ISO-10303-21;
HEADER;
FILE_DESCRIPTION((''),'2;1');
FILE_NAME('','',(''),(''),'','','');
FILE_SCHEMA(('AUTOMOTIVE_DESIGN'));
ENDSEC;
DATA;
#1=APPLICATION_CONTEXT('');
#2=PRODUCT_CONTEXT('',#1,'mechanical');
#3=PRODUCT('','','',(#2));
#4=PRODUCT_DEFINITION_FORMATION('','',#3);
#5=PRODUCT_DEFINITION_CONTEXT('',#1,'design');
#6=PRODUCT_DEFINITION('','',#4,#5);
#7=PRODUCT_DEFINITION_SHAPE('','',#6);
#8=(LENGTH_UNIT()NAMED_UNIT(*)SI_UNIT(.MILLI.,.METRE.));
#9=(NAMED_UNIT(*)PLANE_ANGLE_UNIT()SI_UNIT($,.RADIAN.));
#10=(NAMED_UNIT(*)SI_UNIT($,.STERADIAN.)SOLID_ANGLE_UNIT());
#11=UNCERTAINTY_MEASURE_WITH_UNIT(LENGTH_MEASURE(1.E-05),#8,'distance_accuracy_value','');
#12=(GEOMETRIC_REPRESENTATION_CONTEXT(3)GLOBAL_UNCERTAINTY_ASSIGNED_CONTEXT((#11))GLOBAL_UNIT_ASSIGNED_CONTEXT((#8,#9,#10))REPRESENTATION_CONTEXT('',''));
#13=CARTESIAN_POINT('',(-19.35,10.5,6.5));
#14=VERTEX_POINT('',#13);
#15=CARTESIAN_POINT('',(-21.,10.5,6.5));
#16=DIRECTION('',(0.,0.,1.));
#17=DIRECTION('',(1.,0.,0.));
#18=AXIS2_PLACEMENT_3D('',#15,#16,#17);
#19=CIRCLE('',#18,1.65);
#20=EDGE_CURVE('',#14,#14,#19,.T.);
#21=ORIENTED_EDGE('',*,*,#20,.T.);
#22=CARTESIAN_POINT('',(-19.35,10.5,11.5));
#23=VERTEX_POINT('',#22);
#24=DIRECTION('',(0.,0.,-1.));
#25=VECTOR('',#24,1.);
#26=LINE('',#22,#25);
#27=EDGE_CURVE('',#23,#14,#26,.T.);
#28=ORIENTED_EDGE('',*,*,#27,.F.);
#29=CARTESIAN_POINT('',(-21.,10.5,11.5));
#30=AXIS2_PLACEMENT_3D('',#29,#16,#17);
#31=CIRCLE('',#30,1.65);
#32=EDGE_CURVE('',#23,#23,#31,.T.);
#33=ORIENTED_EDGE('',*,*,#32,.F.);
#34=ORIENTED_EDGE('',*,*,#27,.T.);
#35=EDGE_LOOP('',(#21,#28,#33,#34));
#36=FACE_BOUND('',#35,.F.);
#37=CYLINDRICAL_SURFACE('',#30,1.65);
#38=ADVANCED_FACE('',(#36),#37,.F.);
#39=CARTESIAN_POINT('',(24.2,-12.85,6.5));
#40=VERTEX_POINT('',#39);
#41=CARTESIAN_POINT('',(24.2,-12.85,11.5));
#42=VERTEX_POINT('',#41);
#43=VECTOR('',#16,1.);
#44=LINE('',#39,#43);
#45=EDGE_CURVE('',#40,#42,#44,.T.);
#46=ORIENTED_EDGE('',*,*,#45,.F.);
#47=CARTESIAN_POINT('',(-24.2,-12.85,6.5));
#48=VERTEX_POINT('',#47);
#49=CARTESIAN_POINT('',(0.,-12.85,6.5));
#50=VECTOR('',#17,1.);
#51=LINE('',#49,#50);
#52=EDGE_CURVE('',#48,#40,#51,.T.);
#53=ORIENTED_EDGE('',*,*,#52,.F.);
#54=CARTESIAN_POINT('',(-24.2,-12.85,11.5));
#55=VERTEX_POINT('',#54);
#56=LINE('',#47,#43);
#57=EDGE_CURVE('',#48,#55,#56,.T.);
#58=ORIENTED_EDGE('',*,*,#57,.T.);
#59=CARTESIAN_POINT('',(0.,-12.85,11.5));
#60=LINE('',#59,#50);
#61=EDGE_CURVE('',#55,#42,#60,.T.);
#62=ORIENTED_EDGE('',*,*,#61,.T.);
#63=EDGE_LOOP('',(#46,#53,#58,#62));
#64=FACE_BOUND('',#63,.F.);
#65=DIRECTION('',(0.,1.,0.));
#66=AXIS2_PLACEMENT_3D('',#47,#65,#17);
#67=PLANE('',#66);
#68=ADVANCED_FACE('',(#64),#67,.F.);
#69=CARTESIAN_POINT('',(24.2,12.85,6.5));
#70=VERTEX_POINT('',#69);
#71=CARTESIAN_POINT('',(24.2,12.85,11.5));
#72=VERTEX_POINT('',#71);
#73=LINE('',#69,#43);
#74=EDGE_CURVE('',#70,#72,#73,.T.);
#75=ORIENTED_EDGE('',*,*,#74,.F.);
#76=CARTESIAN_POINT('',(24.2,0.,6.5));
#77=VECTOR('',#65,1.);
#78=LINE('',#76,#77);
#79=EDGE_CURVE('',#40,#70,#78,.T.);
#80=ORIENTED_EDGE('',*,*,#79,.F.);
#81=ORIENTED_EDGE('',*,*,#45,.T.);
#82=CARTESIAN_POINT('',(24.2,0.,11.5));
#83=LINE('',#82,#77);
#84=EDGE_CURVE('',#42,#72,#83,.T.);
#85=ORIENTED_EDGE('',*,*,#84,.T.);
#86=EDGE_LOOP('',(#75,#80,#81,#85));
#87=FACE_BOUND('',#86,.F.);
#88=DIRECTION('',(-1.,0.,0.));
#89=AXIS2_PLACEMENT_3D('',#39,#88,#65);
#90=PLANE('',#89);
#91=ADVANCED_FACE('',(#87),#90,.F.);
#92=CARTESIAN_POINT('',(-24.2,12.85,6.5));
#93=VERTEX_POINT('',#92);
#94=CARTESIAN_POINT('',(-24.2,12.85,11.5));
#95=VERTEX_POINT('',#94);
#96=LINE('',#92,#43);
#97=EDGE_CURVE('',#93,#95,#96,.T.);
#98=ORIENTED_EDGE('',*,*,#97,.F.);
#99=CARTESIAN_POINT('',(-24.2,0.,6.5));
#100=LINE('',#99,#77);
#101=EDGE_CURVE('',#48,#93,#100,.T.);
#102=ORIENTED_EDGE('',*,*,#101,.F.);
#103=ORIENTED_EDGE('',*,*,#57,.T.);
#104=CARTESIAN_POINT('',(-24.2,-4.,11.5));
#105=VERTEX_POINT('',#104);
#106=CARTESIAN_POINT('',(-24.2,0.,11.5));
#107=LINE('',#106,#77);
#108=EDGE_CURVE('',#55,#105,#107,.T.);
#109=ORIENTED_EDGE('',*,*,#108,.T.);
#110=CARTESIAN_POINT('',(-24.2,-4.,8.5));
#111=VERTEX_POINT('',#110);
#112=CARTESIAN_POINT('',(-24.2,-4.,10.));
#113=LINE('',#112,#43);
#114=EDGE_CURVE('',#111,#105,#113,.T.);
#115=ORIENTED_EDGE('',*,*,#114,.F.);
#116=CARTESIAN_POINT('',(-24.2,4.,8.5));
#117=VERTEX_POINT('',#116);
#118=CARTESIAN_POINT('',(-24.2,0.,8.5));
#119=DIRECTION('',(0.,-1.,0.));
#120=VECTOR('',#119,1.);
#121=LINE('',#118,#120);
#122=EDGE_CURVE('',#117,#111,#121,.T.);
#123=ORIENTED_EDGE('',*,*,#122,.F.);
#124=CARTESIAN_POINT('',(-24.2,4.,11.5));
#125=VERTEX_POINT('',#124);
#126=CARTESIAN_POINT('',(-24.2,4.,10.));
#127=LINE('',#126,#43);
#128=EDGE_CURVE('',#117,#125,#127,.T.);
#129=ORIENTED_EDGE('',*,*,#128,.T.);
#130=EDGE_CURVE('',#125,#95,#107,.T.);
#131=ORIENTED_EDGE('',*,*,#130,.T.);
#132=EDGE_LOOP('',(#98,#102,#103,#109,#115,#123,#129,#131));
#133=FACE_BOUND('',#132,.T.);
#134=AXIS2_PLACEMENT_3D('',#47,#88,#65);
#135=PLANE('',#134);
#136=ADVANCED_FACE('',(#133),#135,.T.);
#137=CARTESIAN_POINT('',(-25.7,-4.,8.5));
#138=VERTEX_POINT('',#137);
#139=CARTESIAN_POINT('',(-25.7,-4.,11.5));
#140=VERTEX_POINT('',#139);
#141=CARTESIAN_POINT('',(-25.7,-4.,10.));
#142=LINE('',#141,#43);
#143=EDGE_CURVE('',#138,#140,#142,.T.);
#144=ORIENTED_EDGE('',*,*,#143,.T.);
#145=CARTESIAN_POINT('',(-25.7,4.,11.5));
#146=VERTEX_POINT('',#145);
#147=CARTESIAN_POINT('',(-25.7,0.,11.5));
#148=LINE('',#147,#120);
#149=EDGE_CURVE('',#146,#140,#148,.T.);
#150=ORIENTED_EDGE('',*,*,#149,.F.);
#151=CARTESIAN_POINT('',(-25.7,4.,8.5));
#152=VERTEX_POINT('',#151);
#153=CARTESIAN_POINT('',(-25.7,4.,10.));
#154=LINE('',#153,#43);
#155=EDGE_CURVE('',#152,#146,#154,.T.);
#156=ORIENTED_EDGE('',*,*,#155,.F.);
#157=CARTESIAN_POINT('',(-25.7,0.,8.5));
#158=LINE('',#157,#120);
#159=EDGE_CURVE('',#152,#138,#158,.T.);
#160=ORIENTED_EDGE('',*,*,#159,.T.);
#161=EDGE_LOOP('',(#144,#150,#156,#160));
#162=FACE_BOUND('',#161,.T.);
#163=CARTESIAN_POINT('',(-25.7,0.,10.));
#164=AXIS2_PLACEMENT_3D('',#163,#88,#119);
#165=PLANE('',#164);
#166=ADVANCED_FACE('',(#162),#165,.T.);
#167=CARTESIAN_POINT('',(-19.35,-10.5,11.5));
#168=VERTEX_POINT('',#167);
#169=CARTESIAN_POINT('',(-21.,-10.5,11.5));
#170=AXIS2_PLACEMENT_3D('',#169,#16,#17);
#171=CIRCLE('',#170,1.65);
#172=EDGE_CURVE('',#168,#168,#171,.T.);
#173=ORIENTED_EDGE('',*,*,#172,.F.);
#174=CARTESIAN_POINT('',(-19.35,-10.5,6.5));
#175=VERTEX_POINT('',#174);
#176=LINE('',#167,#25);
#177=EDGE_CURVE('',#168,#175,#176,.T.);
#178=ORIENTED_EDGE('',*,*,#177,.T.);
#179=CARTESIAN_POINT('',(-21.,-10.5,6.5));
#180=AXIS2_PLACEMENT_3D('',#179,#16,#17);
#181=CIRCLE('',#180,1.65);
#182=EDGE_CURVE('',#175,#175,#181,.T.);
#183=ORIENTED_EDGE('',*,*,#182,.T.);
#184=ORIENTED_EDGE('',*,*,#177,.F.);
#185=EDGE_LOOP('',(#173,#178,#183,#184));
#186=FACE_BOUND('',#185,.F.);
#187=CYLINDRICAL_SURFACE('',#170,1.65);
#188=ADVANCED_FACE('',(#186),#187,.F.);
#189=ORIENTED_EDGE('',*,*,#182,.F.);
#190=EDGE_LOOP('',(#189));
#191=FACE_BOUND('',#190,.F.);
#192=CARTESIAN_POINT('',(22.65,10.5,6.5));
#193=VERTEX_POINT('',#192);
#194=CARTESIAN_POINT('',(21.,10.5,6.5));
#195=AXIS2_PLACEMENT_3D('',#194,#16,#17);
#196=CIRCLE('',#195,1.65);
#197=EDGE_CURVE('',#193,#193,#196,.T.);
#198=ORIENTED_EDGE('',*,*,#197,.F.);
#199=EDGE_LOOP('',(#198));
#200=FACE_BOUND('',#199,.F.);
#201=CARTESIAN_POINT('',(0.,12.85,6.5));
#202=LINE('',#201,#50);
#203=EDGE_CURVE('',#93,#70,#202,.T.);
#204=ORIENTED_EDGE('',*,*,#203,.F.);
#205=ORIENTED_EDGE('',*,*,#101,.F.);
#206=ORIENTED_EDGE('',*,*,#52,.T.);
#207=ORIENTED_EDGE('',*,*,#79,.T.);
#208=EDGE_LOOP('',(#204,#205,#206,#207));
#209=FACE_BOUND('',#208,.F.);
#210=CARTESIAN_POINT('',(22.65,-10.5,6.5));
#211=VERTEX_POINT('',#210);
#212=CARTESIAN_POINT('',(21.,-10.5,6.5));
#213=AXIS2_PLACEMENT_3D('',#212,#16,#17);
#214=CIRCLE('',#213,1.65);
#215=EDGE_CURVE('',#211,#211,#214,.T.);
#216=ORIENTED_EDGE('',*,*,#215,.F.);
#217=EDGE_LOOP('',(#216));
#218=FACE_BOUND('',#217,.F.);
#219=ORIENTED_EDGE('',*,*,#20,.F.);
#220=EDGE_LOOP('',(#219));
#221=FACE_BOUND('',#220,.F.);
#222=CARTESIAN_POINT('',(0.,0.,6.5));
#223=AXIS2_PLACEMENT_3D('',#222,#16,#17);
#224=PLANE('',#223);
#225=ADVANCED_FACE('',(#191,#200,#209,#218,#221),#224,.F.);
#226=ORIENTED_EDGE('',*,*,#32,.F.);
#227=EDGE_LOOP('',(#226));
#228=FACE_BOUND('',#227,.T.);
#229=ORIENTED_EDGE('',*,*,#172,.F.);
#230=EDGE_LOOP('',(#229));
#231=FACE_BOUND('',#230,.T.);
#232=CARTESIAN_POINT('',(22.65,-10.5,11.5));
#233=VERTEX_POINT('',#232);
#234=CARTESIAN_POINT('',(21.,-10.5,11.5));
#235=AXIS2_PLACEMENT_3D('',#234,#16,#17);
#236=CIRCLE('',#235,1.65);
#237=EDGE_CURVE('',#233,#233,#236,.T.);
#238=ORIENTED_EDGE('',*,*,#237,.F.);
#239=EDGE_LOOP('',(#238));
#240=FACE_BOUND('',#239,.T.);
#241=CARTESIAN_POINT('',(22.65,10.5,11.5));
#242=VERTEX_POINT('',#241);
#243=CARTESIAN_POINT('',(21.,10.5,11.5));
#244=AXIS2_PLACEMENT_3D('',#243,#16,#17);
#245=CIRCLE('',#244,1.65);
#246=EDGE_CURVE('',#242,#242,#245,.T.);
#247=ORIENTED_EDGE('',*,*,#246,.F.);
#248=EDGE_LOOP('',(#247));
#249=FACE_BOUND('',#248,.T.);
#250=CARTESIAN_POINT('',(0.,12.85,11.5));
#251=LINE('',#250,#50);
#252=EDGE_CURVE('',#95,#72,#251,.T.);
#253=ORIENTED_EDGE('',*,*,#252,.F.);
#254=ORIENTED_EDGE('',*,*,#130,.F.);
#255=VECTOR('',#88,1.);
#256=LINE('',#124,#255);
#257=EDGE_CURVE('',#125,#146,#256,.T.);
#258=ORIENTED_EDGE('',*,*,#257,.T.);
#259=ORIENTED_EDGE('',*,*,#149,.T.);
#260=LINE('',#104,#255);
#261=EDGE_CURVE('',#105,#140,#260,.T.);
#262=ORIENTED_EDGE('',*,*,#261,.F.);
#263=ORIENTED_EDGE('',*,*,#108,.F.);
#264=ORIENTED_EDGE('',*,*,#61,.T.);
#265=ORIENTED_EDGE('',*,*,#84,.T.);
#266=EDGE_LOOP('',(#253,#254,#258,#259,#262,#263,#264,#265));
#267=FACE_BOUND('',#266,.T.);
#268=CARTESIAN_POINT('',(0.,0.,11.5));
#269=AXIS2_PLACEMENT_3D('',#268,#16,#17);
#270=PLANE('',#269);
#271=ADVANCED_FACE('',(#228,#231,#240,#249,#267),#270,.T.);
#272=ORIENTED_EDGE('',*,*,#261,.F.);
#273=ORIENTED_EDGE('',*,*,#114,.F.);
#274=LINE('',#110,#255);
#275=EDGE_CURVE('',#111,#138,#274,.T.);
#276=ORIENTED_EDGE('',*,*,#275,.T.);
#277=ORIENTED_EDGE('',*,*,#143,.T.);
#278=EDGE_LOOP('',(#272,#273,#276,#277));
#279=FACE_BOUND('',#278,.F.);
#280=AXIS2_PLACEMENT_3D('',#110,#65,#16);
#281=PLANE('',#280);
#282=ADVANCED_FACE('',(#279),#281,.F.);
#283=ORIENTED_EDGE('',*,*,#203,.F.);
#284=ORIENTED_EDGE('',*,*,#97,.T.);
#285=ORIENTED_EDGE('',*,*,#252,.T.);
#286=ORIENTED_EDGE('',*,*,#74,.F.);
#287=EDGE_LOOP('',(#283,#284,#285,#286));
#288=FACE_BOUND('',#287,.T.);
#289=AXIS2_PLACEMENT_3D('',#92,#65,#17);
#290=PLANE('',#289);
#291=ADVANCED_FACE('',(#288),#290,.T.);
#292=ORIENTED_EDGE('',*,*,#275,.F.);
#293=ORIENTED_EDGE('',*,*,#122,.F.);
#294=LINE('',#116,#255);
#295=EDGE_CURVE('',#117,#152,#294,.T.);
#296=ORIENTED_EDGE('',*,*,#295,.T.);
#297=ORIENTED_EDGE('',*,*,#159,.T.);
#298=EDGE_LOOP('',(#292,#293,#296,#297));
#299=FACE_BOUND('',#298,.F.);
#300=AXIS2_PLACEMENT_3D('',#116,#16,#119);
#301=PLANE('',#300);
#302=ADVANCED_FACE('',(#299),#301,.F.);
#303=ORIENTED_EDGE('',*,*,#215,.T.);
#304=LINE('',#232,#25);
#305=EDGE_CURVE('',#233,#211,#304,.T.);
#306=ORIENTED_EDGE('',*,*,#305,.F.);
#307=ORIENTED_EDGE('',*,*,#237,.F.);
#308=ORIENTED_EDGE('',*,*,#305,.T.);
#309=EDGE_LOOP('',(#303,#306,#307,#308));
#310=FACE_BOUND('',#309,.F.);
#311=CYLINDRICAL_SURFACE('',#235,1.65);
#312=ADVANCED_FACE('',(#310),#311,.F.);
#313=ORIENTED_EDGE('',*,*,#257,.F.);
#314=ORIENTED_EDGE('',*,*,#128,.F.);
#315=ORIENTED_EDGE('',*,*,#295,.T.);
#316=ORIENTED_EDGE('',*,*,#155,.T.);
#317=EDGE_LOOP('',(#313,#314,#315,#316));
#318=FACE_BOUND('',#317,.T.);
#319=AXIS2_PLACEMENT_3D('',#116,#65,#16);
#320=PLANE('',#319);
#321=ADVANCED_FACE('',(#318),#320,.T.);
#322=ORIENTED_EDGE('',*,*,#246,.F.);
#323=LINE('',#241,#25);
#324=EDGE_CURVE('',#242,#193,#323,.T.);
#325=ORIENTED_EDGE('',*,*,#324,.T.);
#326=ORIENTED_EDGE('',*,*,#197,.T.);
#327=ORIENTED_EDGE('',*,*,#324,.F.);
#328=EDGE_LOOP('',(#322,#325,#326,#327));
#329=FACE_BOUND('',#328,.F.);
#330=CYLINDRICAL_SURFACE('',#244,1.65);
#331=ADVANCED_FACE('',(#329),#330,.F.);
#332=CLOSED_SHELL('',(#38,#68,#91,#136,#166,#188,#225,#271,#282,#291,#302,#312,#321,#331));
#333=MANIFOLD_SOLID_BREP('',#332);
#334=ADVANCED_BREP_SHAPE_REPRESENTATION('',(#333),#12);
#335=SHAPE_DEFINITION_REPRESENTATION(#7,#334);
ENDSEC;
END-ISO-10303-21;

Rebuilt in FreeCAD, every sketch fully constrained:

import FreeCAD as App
import Part
import Sketcher

V = App.Vector

doc = App.newDocument("Part")
body = doc.addObject("PartDesign::Body", "Body")

sketch1 = body.newObject("Sketcher::SketchObject", "Sketch")
sketch1.AttachmentSupport = (doc.getObject("XY_Plane"), [""])
sketch1.MapMode = "FlatFace"
sketch1.addGeometry(Part.LineSegment(V(-24, 13, 0), V(-24, -13, 0)), False)
sketch1.addGeometry(Part.LineSegment(V(-24, -13, 0), V(24, -13, 0)), False)
sketch1.addGeometry(Part.LineSegment(V(24, -13, 0), V(24, 13, 0)), False)
sketch1.addGeometry(Part.LineSegment(V(24, 13, 0), V(-24, 13, 0)), False)
sketch1.addConstraint(Sketcher.Constraint("Coincident", 0, 2, 1, 1))
sketch1.addConstraint(Sketcher.Constraint("Coincident", 1, 2, 2, 1))
sketch1.addConstraint(Sketcher.Constraint("Coincident", 2, 2, 3, 1))
sketch1.addConstraint(Sketcher.Constraint("Coincident", 3, 2, 0, 1))
sketch1.addConstraint(Sketcher.Constraint("Vertical", 0))
sketch1.addConstraint(Sketcher.Constraint("Horizontal", 1))
sketch1.addConstraint(Sketcher.Constraint("Vertical", 2))
sketch1.addConstraint(Sketcher.Constraint("Horizontal", 3))
sketch1.addConstraint(Sketcher.Constraint("Symmetric", 0, 2, 2, 2, -1, 1))
sketch1.addConstraint(Sketcher.Constraint("DistanceX", 1, 1, 1, 2, 48.4))
sketch1.addConstraint(Sketcher.Constraint("DistanceY", 0, 2, 0, 1, 25.7))
pad1 = body.newObject("PartDesign::Pad", "Pad")
pad1.Profile = sketch1
pad1.Length = 5

sketch2 = body.newObject("Sketcher::SketchObject", "Sketch001")
sketch2.AttachmentSupport = (doc.getObject("YZ_Plane"), [""])
sketch2.MapMode = "FlatFace"
sketch2.AttachmentOffset = App.Placement(V(0, 0, -24.2), App.Rotation())
sketch2.addGeometry(Part.LineSegment(V(4, 5, 0), V(4, 2, 0)), False)
sketch2.addGeometry(Part.LineSegment(V(4, 2, 0), V(-4, 2, 0)), False)
sketch2.addGeometry(Part.LineSegment(V(-4, 2, 0), V(-4, 5, 0)), False)
sketch2.addGeometry(Part.LineSegment(V(-4, 5, 0), V(4, 5, 0)), False)
sketch2.addConstraint(Sketcher.Constraint("Coincident", 0, 2, 1, 1))
sketch2.addConstraint(Sketcher.Constraint("Coincident", 1, 2, 2, 1))
sketch2.addConstraint(Sketcher.Constraint("Coincident", 2, 2, 3, 1))
sketch2.addConstraint(Sketcher.Constraint("Coincident", 3, 2, 0, 1))
sketch2.addConstraint(Sketcher.Constraint("Vertical", 0))
sketch2.addConstraint(Sketcher.Constraint("Horizontal", 1))
sketch2.addConstraint(Sketcher.Constraint("Vertical", 2))
sketch2.addConstraint(Sketcher.Constraint("Horizontal", 3))
sketch2.addConstraint(Sketcher.Constraint("DistanceX", 1, 2, 1, 1, 8.0))
sketch2.addConstraint(Sketcher.Constraint("DistanceY", 0, 2, 0, 1, 3.0))
sketch2.addConstraint(Sketcher.Constraint("DistanceX", -1, 1, 0, 2, 4.0))
sketch2.addConstraint(Sketcher.Constraint("DistanceY", -1, 1, 0, 2, 2.0))
pad2 = body.newObject("PartDesign::Pad", "Pad001")
pad2.Profile = sketch2
pad2.Length = 1.5
pad2.Reversed = True

sketch3 = body.newObject("Sketcher::SketchObject", "Sketch002")
sketch3.AttachmentSupport = (doc.getObject("XY_Plane"), [""])
sketch3.MapMode = "FlatFace"
sketch3.AttachmentOffset = App.Placement(V(0, 0, 5), App.Rotation())
sketch3.addGeometry(Part.Circle(V(-21, 10.5, 0), V(0, 0, 1), 1.6), False)
sketch3.addGeometry(Part.Circle(V(-21, -10.5, 0), V(0, 0, 1), 1.6), False)
sketch3.addGeometry(Part.Circle(V(21, 10.5, 0), V(0, 0, 1), 1.6), False)
sketch3.addGeometry(Part.Circle(V(21, -10.5, 0), V(0, 0, 1), 1.6), False)
sketch3.addConstraint(Sketcher.Constraint("Equal", 0, 1))
sketch3.addConstraint(Sketcher.Constraint("Equal", 1, 2))
sketch3.addConstraint(Sketcher.Constraint("Equal", 2, 3))
sketch3.addConstraint(Sketcher.Constraint("Symmetric", 1, 3, 2, 3, -1, 1))
sketch3.addConstraint(Sketcher.Constraint("Symmetric", 0, 3, 3, 3, -1, 1))
sketch3.addConstraint(Sketcher.Constraint("Symmetric", 0, 3, 2, 3, -2))
sketch3.addConstraint(Sketcher.Constraint("Diameter", 0, 3.3))
sketch3.addConstraint(Sketcher.Constraint("DistanceX", 0, 3, -1, 1, 21.0))
sketch3.addConstraint(Sketcher.Constraint("DistanceY", 1, 3, 0, 3, 21.0))
pocket1 = body.newObject("PartDesign::Pocket", "Pocket")
pocket1.Profile = sketch3
pocket1.Type = "ThroughAll"
body2 = doc.addObject("PartDesign::Body", "Body001")
doc.recompute()

body.Placement = App.Placement(V(0, 0, 6.5), App.Rotation(V(0, 0, 1), 0))
boolean = body2.newObject("PartDesign::Boolean", "Boolean")
boolean.Type = "Fuse"
boolean.addObjects([body])

doc.recompute()
